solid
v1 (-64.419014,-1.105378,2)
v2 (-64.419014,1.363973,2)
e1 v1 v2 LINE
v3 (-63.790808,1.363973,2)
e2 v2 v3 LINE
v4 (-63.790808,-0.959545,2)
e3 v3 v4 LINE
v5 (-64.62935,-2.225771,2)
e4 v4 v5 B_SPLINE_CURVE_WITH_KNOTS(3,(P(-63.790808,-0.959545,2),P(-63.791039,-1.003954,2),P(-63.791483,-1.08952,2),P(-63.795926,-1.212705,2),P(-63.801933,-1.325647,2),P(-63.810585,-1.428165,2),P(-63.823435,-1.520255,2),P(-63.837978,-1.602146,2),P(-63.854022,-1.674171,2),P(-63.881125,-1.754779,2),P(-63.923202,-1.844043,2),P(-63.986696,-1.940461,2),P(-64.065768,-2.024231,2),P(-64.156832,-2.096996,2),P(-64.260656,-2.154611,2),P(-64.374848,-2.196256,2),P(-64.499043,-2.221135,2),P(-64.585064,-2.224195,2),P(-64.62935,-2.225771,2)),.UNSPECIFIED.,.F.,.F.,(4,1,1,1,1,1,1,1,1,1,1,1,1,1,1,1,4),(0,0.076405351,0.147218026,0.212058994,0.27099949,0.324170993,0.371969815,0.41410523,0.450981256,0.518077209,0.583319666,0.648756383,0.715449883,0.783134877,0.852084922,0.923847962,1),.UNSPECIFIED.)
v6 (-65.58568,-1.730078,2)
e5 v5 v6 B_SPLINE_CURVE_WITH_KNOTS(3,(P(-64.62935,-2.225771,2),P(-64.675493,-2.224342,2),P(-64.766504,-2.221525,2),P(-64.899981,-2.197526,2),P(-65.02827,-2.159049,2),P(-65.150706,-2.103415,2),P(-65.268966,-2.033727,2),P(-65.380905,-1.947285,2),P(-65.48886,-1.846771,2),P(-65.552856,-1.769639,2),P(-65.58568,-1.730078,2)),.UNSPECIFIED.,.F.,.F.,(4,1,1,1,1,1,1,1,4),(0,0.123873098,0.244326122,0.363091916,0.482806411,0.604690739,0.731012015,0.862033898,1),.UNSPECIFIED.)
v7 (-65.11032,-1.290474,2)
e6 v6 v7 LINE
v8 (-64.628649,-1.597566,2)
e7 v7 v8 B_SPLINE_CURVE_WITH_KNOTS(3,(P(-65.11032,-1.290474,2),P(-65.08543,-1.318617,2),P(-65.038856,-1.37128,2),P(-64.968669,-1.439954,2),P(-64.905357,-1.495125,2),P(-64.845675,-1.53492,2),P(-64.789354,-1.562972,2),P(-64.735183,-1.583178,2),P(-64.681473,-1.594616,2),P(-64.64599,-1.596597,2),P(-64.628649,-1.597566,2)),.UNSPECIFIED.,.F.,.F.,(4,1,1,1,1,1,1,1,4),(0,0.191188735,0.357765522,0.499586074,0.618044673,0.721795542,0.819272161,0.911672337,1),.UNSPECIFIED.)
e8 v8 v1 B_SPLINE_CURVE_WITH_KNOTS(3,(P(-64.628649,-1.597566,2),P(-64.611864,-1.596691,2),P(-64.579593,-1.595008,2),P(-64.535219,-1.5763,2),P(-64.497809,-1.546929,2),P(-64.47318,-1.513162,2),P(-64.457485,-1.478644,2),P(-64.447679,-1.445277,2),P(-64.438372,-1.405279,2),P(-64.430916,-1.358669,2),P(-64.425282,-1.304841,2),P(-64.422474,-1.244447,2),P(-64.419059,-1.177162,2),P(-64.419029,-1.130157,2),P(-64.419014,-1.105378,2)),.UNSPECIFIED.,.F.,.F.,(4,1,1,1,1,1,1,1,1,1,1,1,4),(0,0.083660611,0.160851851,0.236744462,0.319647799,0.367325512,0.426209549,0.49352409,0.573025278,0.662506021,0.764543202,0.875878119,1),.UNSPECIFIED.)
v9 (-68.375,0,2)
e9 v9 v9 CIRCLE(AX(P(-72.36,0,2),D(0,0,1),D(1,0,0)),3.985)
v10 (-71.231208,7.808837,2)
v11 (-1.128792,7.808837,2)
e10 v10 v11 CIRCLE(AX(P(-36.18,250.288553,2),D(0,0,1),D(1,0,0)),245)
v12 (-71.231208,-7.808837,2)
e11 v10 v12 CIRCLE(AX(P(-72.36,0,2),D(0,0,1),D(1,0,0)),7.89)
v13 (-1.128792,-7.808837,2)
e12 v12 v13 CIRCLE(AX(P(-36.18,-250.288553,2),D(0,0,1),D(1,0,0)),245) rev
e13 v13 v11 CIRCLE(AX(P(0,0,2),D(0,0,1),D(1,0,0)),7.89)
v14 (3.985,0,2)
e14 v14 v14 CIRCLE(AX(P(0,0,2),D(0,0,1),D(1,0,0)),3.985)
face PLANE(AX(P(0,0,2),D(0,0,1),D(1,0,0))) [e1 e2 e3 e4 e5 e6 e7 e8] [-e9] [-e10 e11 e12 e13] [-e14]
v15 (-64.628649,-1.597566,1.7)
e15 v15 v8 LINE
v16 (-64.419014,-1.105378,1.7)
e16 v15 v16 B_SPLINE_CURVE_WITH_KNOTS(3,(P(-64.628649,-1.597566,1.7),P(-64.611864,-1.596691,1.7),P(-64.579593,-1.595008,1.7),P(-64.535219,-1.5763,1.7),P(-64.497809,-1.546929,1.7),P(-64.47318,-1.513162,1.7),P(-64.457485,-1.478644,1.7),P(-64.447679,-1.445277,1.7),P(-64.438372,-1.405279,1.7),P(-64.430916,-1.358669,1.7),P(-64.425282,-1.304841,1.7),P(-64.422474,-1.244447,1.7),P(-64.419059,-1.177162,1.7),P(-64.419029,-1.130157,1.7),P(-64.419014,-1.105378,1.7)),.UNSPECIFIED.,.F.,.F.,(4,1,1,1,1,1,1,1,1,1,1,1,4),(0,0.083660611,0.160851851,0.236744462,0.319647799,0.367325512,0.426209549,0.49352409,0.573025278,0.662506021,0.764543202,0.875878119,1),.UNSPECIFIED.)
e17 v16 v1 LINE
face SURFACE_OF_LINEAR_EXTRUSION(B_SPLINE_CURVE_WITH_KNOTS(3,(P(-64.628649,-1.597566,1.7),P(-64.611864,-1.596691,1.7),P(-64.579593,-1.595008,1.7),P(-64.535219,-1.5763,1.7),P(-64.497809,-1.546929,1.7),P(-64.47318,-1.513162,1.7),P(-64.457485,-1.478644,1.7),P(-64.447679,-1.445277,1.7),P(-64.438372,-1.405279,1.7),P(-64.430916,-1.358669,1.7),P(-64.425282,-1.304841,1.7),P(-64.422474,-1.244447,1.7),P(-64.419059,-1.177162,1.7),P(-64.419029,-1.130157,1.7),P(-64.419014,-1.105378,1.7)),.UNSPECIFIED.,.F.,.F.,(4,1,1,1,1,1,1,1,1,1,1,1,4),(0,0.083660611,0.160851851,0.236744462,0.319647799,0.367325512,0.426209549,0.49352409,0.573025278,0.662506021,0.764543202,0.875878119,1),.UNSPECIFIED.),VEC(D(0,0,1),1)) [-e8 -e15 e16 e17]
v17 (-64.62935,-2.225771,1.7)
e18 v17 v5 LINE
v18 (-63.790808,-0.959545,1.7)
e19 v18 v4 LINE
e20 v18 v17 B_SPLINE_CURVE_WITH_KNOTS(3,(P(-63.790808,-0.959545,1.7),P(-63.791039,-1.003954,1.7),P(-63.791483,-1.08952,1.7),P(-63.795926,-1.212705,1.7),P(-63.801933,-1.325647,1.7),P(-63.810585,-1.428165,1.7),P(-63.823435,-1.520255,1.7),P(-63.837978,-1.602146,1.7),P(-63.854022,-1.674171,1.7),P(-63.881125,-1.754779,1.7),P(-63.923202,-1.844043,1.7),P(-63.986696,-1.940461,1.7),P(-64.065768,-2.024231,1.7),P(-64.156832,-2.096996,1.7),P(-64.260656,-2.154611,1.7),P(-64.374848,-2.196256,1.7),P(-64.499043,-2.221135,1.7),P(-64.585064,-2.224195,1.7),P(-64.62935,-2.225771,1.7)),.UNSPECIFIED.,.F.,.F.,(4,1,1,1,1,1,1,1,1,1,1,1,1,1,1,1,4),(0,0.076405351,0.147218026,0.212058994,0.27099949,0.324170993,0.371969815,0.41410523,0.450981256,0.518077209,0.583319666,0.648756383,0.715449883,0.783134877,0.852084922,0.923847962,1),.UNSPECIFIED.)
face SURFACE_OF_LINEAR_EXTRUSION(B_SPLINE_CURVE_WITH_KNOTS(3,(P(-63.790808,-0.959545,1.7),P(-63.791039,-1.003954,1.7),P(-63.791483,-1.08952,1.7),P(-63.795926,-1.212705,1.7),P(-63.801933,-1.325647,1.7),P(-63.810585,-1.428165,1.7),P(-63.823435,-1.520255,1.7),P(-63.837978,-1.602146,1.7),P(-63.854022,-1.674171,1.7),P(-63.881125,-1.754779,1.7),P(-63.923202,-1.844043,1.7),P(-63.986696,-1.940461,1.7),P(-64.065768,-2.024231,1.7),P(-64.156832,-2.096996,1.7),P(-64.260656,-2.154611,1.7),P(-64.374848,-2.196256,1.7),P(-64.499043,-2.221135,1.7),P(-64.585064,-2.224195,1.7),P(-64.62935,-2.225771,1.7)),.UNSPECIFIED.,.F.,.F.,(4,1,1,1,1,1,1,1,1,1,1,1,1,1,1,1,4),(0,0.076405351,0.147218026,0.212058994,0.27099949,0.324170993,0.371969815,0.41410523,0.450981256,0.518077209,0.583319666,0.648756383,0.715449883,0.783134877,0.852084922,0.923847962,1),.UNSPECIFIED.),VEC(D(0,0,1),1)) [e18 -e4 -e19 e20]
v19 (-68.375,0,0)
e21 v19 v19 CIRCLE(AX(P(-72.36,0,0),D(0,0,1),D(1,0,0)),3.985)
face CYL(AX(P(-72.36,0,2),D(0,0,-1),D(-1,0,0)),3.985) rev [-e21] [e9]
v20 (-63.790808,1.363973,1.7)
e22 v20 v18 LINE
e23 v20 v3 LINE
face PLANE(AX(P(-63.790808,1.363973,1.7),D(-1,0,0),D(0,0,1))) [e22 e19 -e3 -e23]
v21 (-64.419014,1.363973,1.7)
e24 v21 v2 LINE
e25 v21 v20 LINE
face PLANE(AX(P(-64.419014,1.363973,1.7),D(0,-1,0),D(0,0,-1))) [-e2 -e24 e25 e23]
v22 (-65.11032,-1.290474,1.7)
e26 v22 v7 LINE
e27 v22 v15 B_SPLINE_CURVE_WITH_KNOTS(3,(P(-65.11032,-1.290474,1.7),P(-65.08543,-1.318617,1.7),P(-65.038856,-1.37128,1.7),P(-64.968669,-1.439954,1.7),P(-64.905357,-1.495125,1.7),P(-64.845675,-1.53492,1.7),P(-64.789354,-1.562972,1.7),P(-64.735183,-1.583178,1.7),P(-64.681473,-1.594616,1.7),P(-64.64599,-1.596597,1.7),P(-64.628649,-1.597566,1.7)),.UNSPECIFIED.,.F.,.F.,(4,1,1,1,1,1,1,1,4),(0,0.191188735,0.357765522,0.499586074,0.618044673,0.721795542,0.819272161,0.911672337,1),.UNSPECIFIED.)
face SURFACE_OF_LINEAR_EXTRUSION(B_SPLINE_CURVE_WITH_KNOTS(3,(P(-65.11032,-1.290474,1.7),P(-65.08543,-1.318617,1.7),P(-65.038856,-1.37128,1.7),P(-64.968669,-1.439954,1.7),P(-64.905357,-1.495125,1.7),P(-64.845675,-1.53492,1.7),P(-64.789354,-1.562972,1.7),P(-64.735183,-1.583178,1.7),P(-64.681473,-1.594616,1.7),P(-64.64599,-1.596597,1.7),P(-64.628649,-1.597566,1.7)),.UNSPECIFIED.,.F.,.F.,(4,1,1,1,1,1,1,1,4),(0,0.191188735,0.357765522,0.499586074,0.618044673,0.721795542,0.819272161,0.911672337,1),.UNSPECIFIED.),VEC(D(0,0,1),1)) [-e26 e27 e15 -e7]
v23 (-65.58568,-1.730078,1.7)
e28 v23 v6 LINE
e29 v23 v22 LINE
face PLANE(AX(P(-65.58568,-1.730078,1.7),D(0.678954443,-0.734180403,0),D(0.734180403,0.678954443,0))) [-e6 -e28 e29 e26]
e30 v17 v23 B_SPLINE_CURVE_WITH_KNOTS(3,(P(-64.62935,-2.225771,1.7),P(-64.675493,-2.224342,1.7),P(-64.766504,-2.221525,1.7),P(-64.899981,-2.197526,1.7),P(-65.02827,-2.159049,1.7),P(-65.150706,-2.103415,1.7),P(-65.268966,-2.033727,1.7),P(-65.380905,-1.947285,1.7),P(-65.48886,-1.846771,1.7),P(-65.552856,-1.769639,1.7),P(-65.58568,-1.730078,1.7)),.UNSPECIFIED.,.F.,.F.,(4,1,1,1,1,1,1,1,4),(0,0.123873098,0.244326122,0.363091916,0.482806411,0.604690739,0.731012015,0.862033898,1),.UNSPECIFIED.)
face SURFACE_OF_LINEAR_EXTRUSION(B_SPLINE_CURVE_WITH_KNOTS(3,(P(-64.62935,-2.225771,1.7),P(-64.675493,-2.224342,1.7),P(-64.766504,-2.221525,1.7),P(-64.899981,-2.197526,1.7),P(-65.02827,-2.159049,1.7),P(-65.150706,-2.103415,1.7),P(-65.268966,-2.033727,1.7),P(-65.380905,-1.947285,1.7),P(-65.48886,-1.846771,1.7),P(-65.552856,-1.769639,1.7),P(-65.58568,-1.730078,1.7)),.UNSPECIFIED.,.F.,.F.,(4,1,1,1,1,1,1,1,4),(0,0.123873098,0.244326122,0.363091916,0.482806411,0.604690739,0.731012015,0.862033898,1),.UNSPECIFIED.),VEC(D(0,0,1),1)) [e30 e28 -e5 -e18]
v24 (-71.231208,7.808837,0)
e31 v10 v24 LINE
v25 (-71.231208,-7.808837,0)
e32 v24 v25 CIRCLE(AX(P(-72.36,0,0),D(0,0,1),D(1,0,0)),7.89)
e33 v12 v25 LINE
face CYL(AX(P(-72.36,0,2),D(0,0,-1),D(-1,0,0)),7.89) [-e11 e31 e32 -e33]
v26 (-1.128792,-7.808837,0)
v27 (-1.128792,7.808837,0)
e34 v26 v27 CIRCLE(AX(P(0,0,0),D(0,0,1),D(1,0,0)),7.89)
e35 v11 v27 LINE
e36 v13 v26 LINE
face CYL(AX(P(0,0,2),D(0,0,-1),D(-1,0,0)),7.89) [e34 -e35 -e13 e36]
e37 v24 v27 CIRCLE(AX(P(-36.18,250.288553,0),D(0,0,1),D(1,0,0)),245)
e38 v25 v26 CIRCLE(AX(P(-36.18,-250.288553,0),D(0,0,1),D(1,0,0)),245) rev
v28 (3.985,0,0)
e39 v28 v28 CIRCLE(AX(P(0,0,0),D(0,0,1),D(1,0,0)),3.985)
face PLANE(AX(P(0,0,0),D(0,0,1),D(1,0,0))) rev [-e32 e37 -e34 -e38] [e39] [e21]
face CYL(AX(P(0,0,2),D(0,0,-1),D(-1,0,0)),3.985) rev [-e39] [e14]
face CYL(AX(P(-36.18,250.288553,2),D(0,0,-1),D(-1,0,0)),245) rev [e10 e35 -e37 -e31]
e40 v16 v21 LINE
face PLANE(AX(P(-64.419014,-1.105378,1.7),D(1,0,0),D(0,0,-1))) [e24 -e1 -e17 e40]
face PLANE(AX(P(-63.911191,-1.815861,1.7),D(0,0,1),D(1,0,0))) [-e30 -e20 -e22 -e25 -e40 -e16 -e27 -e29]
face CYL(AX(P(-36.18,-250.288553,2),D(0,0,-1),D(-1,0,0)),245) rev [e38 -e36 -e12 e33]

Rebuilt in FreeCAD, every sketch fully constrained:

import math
import FreeCAD as App
import Part
import Sketcher
from FreeCAD import Vector

doc = App.newDocument("Part")
params = doc.addObject("Spreadsheet::Sheet", "Params")
for row, (alias, value) in enumerate([
    ("sketch1_radius", "245 mm"),
    ("sketch1_diameter", "7.97 mm"),
    ("sketch1_radius2", "7.89 mm"),
    ("pad1_length", "2 mm"),
    ("pocket1_length", "0.3 mm"),
], start=1):
    params.set(f"A{row}", alias)
    params.set(f"B{row}", "=" + value)
    params.setAlias(f"B{row}", alias)

body = doc.addObject("PartDesign::Body", "Body")

# Sketch on XY plane
sketch1 = body.newObject("Sketcher::SketchObject", "Sketch")
sketch1.AttachmentSupport = (doc.getObject("XY_Plane"), [""])
sketch1.MapMode = "FlatFace"
sketch1.addGeometry([
    Part.ArcOfCircle(Part.Circle(Vector(0, 0, 0), Vector(0, 0, 1), 7.9), math.radians(-98), math.radians(98)),  # 0
    Part.ArcOfCircle(Part.Circle(Vector(-36.2, 250.3, 0), Vector(0, 0, 1), 245), math.radians(-98.23), math.radians(-81.77)),  # 1
    Part.ArcOfCircle(Part.Circle(Vector(-72.4, 0, 0), Vector(0, 0, 1), 7.9), math.radians(82), math.radians(278)),  # 2
    Part.ArcOfCircle(Part.Circle(Vector(-36.2, -250.3, 0), Vector(0, 0, 1), 245), math.radians(81.77), math.radians(98.23)),  # 3
    Part.Circle(Vector(0, 0, 0), Vector(0, 0, 1), 4),  # 4
    Part.Circle(Vector(-72.4, 0, 0), Vector(0, 0, 1), 4),  # 5
], False)
sketch1.addConstraint([
    Sketcher.Constraint("Tangent", 0, 2, 1, 2),
    Sketcher.Constraint("Tangent", 1, 1, 2, 1),
    Sketcher.Constraint("Tangent", 2, 2, 3, 2),
    Sketcher.Constraint("Tangent", 3, 1, 0, 1),
    Sketcher.Constraint("Coincident", 0, 3, -1, 1),
    Sketcher.Constraint("Coincident", 4, 3, -1, 1),
    Sketcher.Constraint("Coincident", 5, 3, 2, 3),
    Sketcher.Constraint("Equal", 0, 2),
    Sketcher.Constraint("Equal", 1, 3),
    Sketcher.Constraint("Equal", 4, 5),
    Sketcher.Constraint("PointOnObject", 2, 3, -1),
    Sketcher.Constraint("Radius", 1, 245.0),
    Sketcher.Constraint("Diameter", 4, 7.97),
    Sketcher.Constraint("Radius", 0, 7.89),
    Sketcher.Constraint("DistanceX", 1, 3, -1, 1, 36.18),
])
sketch1.setExpression("Constraints[11]", "Params.sketch1_radius")
sketch1.setExpression("Constraints[12]", "Params.sketch1_diameter")
sketch1.setExpression("Constraints[13]", "Params.sketch1_radius2")
pad1 = body.newObject("PartDesign::Pad", "Pad")
pad1.Profile = sketch1
pad1.setExpression("Length", "Params.pad1_length")

# Sketch on XY plane
sketch2 = body.newObject("Sketcher::SketchObject", "Sketch001")
sketch2.AttachmentSupport = (doc.getObject("XY_Plane"), [""])
sketch2.MapMode = "FlatFace"
sketch2.AttachmentOffset = App.Placement(Vector(0, 0, 2), App.Rotation())
sketch2.addGeometry([
    Part.LineSegment(Vector(-63.790808, 1.363973, 0), Vector(-64.419014, 1.363973, 0)),  # 0
    Part.LineSegment(Vector(-64.419014, 1.363973, 0), Vector(-64.419014, -1.105378, 0)),  # 1
    Part.BSplineCurve([Vector(-64.628649, -1.597566, 0), Vector(-64.611864, -1.596691, 0), Vector(-64.579593, -1.595008, 0), Vector(-64.535219, -1.5763, 0), Vector(-64.497809, -1.546929, 0), Vector(-64.47318, -1.513162, 0), Vector(-64.457485, -1.478644, 0), Vector(-64.447679, -1.445277, 0), Vector(-64.438372, -1.405279, 0), Vector(-64.430916, -1.358669, 0), Vector(-64.425282, -1.304841, 0), Vector(-64.422474, -1.244447, 0), Vector(-64.419059, -1.177162, 0), Vector(-64.419029, -1.130157, 0), Vector(-64.419014, -1.105378, 0)], [4, 1, 1, 1, 1, 1, 1, 1, 1, 1, 1, 1, 4], [0, 1.003927327, 1.930222208, 2.840933547, 3.835773585, 4.407906147, 5.114514582, 5.922289074, 6.876303333, 7.950072246, 9.174518422, 10.510537432, 12], False, 3, [1, 1, 1, 1, 1, 1, 1, 1, 1, 1, 1, 1, 1, 1, 1], False),  # 2
    Part.BSplineCurve([Vector(-65.11032, -1.290474, 0), Vector(-65.08543, -1.318617, 0), Vector(-65.038856, -1.37128, 0), Vector(-64.968669, -1.439954, 0), Vector(-64.905357, -1.495125, 0), Vector(-64.845675, -1.53492, 0), Vector(-64.789354, -1.562972, 0), Vector(-64.735183, -1.583178, 0), Vector(-64.681473, -1.594616, 0), Vector(-64.64599, -1.596597, 0), Vector(-64.628649, -1.597566, 0)], [4, 1, 1, 1, 1, 1, 1, 1, 4], [0, 1.529509877, 2.862124173, 3.996688592, 4.944357383, 5.774364335, 6.554177287, 7.293378699, 8], False, 3, [1, 1, 1, 1, 1, 1, 1, 1, 1, 1, 1], False),  # 3
    Part.LineSegment(Vector(-65.11032, -1.290474, 0), Vector(-65.58568, -1.730078, 0)),  # 4
    Part.BSplineCurve([Vector(-64.62935, -2.225771, 0), Vector(-64.675493, -2.224342, 0), Vector(-64.766504, -2.221525, 0), Vector(-64.899981, -2.197526, 0), Vector(-65.02827, -2.159049, 0), Vector(-65.150706, -2.103415, 0), Vector(-65.268966, -2.033727, 0), Vector(-65.380905, -1.947285, 0), Vector(-65.48886, -1.846771, 0), Vector(-65.552856, -1.769639, 0), Vector(-65.58568, -1.730078, 0)], [4, 1, 1, 1, 1, 1, 1, 1, 4], [0, 0.990984786, 1.954608977, 2.90473533, 3.862451285, 4.837525908, 5.848096122, 6.896271184, 8], False, 3, [1, 1, 1, 1, 1, 1, 1, 1, 1, 1, 1], False),  # 5
    Part.BSplineCurve([Vector(-63.790808, -0.959545, 0), Vector(-63.791039, -1.003954, 0), Vector(-63.791483, -1.08952, 0), Vector(-63.795926, -1.212705, 0), Vector(-63.801933, -1.325647, 0), Vector(-63.810585, -1.428165, 0), Vector(-63.823435, -1.520255, 0), Vector(-63.837978, -1.602146, 0), Vector(-63.854022, -1.674171, 0), Vector(-63.881125, -1.754779, 0), Vector(-63.923202, -1.844043, 0), Vector(-63.986696, -1.940461, 0), Vector(-64.065768, -2.024231, 0), Vector(-64.156832, -2.096996, 0), Vector(-64.260656, -2.154611, 0), Vector(-64.374848, -2.196256, 0), Vector(-64.499043, -2.221135, 0), Vector(-64.585064, -2.224195, 0), Vector(-64.62935, -2.225771, 0)], [4, 1, 1, 1, 1, 1, 1, 1, 1, 1, 1, 1, 1, 1, 1, 1, 4], [0, 1.22248561, 2.355488409, 3.392943897, 4.335991845, 5.186735882, 5.951517034, 6.625683685, 7.215700098, 8.28923535, 9.333114649, 10.380102123, 11.447198135, 12.530158036, 13.633358744, 14.781567393, 16], False, 3, [1, 1, 1, 1, 1, 1, 1, 1, 1, 1, 1, 1, 1, 1, 1, 1, 1, 1, 1], False),  # 6
    Part.LineSegment(Vector(-63.790808, -0.959545, 0), Vector(-63.790808, 1.363973, 0)),  # 7
], False)
sketch2.addConstraint([
    Sketcher.Constraint("Block", 2),
    Sketcher.Constraint("Block", 3),
    Sketcher.Constraint("Block", 5),
    Sketcher.Constraint("Block", 6),
    Sketcher.Constraint("Coincident", 0, 2, 1, 1),
    Sketcher.Constraint("Coincident", 1, 2, 2, 2),
    Sketcher.Constraint("Coincident", 3, 1, 4, 1),
    Sketcher.Constraint("Coincident", 4, 2, 5, 2),
    Sketcher.Constraint("Coincident", 6, 1, 7, 1),
    Sketcher.Constraint("Coincident", 7, 2, 0, 1),
    Sketcher.Constraint("Horizontal", 0),
    Sketcher.Constraint("Vertical", 1),
    Sketcher.Constraint("Vertical", 7),
    Sketcher.Constraint("DistanceY", 1, 2, 1, 1, 2.469351),
])
pocket1 = body.newObject("PartDesign::Pocket", "Pocket")
pocket1.Profile = sketch2
pocket1.setExpression("Length", "Params.pocket1_length")

doc.recompute()
